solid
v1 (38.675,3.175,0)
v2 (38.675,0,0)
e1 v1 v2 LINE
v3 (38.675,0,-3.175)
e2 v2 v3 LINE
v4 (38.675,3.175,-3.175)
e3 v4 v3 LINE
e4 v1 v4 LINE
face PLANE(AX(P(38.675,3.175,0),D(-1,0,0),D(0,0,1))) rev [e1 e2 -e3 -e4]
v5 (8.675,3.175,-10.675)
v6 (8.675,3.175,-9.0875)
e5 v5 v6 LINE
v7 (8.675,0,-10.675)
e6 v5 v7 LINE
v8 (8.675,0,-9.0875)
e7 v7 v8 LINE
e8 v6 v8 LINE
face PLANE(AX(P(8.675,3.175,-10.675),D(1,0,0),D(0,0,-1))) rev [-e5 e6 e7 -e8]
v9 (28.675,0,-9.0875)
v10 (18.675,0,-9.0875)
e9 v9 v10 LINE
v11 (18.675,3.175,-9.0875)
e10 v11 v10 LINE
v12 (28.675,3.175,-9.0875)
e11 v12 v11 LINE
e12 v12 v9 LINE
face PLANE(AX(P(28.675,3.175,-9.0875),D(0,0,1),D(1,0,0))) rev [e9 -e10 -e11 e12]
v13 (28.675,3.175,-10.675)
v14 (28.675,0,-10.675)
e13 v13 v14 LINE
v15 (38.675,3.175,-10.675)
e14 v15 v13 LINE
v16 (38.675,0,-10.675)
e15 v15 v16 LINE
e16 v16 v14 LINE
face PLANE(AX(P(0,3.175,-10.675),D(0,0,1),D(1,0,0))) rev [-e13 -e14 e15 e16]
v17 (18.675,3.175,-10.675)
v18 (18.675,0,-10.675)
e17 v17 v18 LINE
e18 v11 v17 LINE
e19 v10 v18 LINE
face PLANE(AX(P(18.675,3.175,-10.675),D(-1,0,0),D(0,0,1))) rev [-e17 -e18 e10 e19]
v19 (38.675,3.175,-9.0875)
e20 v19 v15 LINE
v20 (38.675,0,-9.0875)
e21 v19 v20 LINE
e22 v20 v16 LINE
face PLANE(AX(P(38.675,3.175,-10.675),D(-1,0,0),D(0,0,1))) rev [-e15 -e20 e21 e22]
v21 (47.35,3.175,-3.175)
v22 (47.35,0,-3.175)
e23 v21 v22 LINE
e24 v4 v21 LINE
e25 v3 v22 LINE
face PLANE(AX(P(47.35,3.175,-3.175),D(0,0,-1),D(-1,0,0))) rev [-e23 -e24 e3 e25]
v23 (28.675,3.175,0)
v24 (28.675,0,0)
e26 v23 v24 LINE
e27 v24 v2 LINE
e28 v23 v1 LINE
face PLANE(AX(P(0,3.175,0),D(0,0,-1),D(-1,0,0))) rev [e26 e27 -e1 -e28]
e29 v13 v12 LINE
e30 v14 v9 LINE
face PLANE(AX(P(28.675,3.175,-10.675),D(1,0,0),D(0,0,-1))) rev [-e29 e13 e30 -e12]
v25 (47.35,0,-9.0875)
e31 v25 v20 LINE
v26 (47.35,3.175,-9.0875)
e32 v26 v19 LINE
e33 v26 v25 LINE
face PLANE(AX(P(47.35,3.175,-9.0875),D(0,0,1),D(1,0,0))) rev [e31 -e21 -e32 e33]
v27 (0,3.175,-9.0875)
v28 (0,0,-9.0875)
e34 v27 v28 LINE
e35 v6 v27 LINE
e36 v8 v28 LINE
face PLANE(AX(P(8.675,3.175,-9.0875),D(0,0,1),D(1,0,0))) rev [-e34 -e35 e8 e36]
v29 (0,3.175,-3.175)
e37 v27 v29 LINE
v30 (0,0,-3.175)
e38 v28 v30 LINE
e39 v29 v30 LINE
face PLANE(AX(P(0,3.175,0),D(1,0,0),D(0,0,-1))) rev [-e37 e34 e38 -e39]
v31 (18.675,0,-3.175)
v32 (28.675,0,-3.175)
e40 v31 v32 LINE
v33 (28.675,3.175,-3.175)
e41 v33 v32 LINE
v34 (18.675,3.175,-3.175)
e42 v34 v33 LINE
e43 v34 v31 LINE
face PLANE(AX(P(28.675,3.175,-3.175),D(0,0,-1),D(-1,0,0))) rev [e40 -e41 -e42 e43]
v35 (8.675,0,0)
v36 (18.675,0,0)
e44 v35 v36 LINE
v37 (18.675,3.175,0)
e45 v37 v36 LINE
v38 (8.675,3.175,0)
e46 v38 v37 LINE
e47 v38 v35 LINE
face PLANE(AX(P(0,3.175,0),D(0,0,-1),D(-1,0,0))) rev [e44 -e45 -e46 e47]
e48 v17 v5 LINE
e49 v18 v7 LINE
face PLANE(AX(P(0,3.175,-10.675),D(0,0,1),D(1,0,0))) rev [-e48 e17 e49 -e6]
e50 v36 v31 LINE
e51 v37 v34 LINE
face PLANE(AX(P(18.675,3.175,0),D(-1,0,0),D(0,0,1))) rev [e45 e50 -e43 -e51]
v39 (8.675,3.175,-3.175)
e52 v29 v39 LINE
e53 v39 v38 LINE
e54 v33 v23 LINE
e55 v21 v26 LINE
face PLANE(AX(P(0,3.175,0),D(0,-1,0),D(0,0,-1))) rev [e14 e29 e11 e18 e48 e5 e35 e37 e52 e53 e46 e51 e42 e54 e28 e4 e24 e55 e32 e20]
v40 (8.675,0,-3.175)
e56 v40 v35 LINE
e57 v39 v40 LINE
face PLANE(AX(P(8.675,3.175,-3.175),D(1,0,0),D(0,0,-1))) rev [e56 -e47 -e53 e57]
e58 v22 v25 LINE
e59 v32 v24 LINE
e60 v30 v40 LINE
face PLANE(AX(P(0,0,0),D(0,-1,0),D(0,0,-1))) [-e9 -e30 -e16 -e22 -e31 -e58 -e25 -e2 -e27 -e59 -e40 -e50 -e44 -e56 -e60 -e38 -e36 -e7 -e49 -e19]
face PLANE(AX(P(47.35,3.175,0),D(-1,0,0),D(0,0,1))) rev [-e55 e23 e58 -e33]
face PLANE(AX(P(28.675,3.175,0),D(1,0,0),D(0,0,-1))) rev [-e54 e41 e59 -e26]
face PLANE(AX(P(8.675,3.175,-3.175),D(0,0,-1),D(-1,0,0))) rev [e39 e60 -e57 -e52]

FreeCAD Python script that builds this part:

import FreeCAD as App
import Part
import Sketcher
from FreeCAD import Vector
Q = App.Units.Quantity

doc = App.newDocument("Part")
body = doc.addObject("PartDesign::Body", "Body")

# Sketch on XZ plane
sketch1 = doc.addObject("Sketcher::SketchObject", "Sketch")
body.addObject(sketch1)
sketch1.AttachmentSupport = (doc.XZ_Plane, [""])
sketch1.MapMode = "FlatFace"
sketch1.addGeometry([
    Part.LineSegment(Vector(0, -10.675, 0), Vector(0, 0, 0)),
    Part.LineSegment(Vector(0, 0, 0), Vector(47.35, 0, 0)),
    Part.LineSegment(Vector(47.35, 0, 0), Vector(47.35, -10.675, 0)),
    Part.LineSegment(Vector(47.35, -10.675, 0), Vector(0, -10.675, 0)),
], False)
sketch1.addConstraint([
    Sketcher.Constraint("Coincident", 0, 2, 1, 1),
    Sketcher.Constraint("Coincident", 1, 2, 2, 1),
    Sketcher.Constraint("Coincident", 2, 2, 3, 1),
    Sketcher.Constraint("Coincident", 3, 2, 0, 1),
    Sketcher.Constraint("Vertical", 0),
    Sketcher.Constraint("Horizontal", 1),
    Sketcher.Constraint("Vertical", 2),
    Sketcher.Constraint("Horizontal", 3),
    Sketcher.Constraint("Coincident", 0, 2, -1, 1),
    Sketcher.Constraint("DistanceX", 1, 1, 1, 2, Q("47.35 mm")),
    Sketcher.Constraint("DistanceY", 0, 1, 0, 2, Q("10.675 mm")),
])
pad1 = doc.addObject("PartDesign::Pad", "Pad")
body.addObject(pad1)
pad1.Profile = sketch1
pad1.Length = Q("0.125 in")
pad1.Reversed = True

# Sketch on XZ plane
sketch2 = doc.addObject("Sketcher::SketchObject", "Sketch001")
body.addObject(sketch2)
sketch2.AttachmentSupport = (doc.XZ_Plane, [""])
sketch2.MapMode = "FlatFace"
sketch2.addGeometry([
    Part.LineSegment(Vector(38.675, 0, 0), Vector(38.675, -3.175, 0)),  # 0
    Part.LineSegment(Vector(38.675, -3.175, 0), Vector(47.35, -3.175, 0)),  # 1
    Part.LineSegment(Vector(47.35, -3.175, 0), Vector(47.35, 0, 0)),  # 2
    Part.LineSegment(Vector(47.35, 0, 0), Vector(38.675, 0, 0)),  # 3
    Part.LineSegment(Vector(18.675, 0, 0), Vector(18.675, -3.175, 0)),  # 4
    Part.LineSegment(Vector(18.675, -3.175, 0), Vector(28.675, -3.175, 0)),  # 5
    Part.LineSegment(Vector(28.675, -3.175, 0), Vector(28.675, 0, 0)),  # 6
    Part.LineSegment(Vector(28.675, 0, 0), Vector(18.675, 0, 0)),  # 7
    Part.LineSegment(Vector(0, 0, 0), Vector(0, -3.175, 0)),  # 8
    Part.LineSegment(Vector(0, -3.175, 0), Vector(8.675, -3.175, 0)),  # 9
    Part.LineSegment(Vector(8.675, -3.175, 0), Vector(8.675, 0, 0)),  # 10
    Part.LineSegment(Vector(8.675, 0, 0), Vector(0, 0, 0)),  # 11
    Part.LineSegment(Vector(38.675, -9.0875, 0), Vector(38.675, -10.675, 0)),  # 12
    Part.LineSegment(Vector(38.675, -10.675, 0), Vector(47.35, -10.675, 0)),  # 13
    Part.LineSegment(Vector(47.35, -10.675, 0), Vector(47.35, -9.0875, 0)),  # 14
    Part.LineSegment(Vector(47.35, -9.0875, 0), Vector(38.675, -9.0875, 0)),  # 15
    Part.LineSegment(Vector(18.675, -9.0875, 0), Vector(18.675, -10.675, 0)),  # 16
    Part.LineSegment(Vector(18.675, -10.675, 0), Vector(28.675, -10.675, 0)),  # 17
    Part.LineSegment(Vector(28.675, -10.675, 0), Vector(28.675, -9.0875, 0)),  # 18
    Part.LineSegment(Vector(28.675, -9.0875, 0), Vector(18.675, -9.0875, 0)),  # 19
    Part.LineSegment(Vector(0, -9.0875, 0), Vector(0, -10.675, 0)),  # 20
    Part.LineSegment(Vector(0, -10.675, 0), Vector(8.675, -10.675, 0)),  # 21
    Part.LineSegment(Vector(8.675, -10.675, 0), Vector(8.675, -9.0875, 0)),  # 22
    Part.LineSegment(Vector(8.675, -9.0875, 0), Vector(0, -9.0875, 0)),  # 23
], False)
sketch2.addConstraint([
    Sketcher.Constraint("Coincident", 0, 2, 1, 1),
    Sketcher.Constraint("Coincident", 1, 2, 2, 1),
    Sketcher.Constraint("Coincident", 2, 2, 3, 1),
    Sketcher.Constraint("Coincident", 3, 2, 0, 1),
    Sketcher.Constraint("Coincident", 4, 2, 5, 1),
    Sketcher.Constraint("Coincident", 5, 2, 6, 1),
    Sketcher.Constraint("Coincident", 6, 2, 7, 1),
    Sketcher.Constraint("Coincident", 7, 2, 4, 1),
    Sketcher.Constraint("Coincident", 8, 2, 9, 1),
    Sketcher.Constraint("Coincident", 9, 2, 10, 1),
    Sketcher.Constraint("Coincident", 10, 2, 11, 1),
    Sketcher.Constraint("Coincident", 11, 2, 8, 1),
    Sketcher.Constraint("Coincident", 12, 2, 13, 1),
    Sketcher.Constraint("Coincident", 13, 2, 14, 1),
    Sketcher.Constraint("Coincident", 14, 2, 15, 1),
    Sketcher.Constraint("Coincident", 15, 2, 12, 1),
    Sketcher.Constraint("Coincident", 16, 2, 17, 1),
    Sketcher.Constraint("Coincident", 17, 2, 18, 1),
    Sketcher.Constraint("Coincident", 18, 2, 19, 1),
    Sketcher.Constraint("Coincident", 19, 2, 16, 1),
    Sketcher.Constraint("Coincident", 20, 2, 21, 1),
    Sketcher.Constraint("Coincident", 21, 2, 22, 1),
    Sketcher.Constraint("Coincident", 22, 2, 23, 1),
    Sketcher.Constraint("Coincident", 23, 2, 20, 1),
    Sketcher.Constraint("Vertical", 0),
    Sketcher.Constraint("Horizontal", 1),
    Sketcher.Constraint("Vertical", 2),
    Sketcher.Constraint("Horizontal", 3),
    Sketcher.Constraint("Vertical", 4),
    Sketcher.Constraint("Horizontal", 5),
    Sketcher.Constraint("Vertical", 6),
    Sketcher.Constraint("Horizontal", 7),
    Sketcher.Constraint("Vertical", 8),
    Sketcher.Constraint("Horizontal", 9),
    Sketcher.Constraint("Vertical", 10),
    Sketcher.Constraint("Horizontal", 11),
    Sketcher.Constraint("Vertical", 12),
    Sketcher.Constraint("Horizontal", 13),
    Sketcher.Constraint("Vertical", 14),
    Sketcher.Constraint("Horizontal", 15),
    Sketcher.Constraint("Vertical", 16),
    Sketcher.Constraint("Horizontal", 17),
    Sketcher.Constraint("Vertical", 18),
    Sketcher.Constraint("Horizontal", 19),
    Sketcher.Constraint("Vertical", 20),
    Sketcher.Constraint("Horizontal", 21),
    Sketcher.Constraint("Vertical", 22),
    Sketcher.Constraint("Horizontal", 23),
    Sketcher.Constraint("Coincident", 11, 2, -1, 1),
    Sketcher.Constraint("PointOnObject", 2, 2, -1),
    Sketcher.Constraint("PointOnObject", 6, 2, -1),
    Sketcher.Constraint("PointOnObject", 20, 2, -2),
    Sketcher.Constraint("Horizontal", 1, 2, 4, 2),
    Sketcher.Constraint("Horizontal", 5, 2, 8, 2),
    Sketcher.Constraint("Horizontal", 13, 2, 16, 2),
    Sketcher.Constraint("Horizontal", 15, 2, 18, 2),
    Sketcher.Constraint("Horizontal", 17, 2, 20, 2),
    Sketcher.Constraint("Horizontal", 19, 2, 22, 2),
    Sketcher.Constraint("Vertical", 3, 2, 12, 2),
    Sketcher.Constraint("Vertical", 2, 2, 13, 2),
    Sketcher.Constraint("Vertical", 7, 2, 16, 2),
    Sketcher.Constraint("Vertical", 6, 2, 17, 2),
    Sketcher.Constraint("Vertical", 10, 2, 21, 2),
    Sketcher.Constraint("Equal", 3, 9),
    Sketcher.Constraint("DistanceY", 0, 2, 0, 1, Q("0.125 in")),
    Sketcher.Constraint("DistanceY", 12, 2, 12, 1, Q("0.0625 in")),
    Sketcher.Constraint("DistanceX", 1, 1, 1, 2, Q("8.675 mm")),
    Sketcher.Constraint("DistanceX", 5, 1, 5, 2, Q("10 mm")),
    Sketcher.Constraint("DistanceX", -1, 1, 0, 2, Q("38.675 mm")),
    Sketcher.Constraint("DistanceX", -1, 1, 4, 2, Q("18.675 mm")),
    Sketcher.Constraint("DistanceY", 12, 2, -1, 1, Q("10.675 mm")),
])
pocket1 = doc.addObject("PartDesign::Pocket", "Pocket")
body.addObject(pocket1)
pocket1.Profile = sketch2
pocket1.Type = "ThroughAll"

doc.recompute()
